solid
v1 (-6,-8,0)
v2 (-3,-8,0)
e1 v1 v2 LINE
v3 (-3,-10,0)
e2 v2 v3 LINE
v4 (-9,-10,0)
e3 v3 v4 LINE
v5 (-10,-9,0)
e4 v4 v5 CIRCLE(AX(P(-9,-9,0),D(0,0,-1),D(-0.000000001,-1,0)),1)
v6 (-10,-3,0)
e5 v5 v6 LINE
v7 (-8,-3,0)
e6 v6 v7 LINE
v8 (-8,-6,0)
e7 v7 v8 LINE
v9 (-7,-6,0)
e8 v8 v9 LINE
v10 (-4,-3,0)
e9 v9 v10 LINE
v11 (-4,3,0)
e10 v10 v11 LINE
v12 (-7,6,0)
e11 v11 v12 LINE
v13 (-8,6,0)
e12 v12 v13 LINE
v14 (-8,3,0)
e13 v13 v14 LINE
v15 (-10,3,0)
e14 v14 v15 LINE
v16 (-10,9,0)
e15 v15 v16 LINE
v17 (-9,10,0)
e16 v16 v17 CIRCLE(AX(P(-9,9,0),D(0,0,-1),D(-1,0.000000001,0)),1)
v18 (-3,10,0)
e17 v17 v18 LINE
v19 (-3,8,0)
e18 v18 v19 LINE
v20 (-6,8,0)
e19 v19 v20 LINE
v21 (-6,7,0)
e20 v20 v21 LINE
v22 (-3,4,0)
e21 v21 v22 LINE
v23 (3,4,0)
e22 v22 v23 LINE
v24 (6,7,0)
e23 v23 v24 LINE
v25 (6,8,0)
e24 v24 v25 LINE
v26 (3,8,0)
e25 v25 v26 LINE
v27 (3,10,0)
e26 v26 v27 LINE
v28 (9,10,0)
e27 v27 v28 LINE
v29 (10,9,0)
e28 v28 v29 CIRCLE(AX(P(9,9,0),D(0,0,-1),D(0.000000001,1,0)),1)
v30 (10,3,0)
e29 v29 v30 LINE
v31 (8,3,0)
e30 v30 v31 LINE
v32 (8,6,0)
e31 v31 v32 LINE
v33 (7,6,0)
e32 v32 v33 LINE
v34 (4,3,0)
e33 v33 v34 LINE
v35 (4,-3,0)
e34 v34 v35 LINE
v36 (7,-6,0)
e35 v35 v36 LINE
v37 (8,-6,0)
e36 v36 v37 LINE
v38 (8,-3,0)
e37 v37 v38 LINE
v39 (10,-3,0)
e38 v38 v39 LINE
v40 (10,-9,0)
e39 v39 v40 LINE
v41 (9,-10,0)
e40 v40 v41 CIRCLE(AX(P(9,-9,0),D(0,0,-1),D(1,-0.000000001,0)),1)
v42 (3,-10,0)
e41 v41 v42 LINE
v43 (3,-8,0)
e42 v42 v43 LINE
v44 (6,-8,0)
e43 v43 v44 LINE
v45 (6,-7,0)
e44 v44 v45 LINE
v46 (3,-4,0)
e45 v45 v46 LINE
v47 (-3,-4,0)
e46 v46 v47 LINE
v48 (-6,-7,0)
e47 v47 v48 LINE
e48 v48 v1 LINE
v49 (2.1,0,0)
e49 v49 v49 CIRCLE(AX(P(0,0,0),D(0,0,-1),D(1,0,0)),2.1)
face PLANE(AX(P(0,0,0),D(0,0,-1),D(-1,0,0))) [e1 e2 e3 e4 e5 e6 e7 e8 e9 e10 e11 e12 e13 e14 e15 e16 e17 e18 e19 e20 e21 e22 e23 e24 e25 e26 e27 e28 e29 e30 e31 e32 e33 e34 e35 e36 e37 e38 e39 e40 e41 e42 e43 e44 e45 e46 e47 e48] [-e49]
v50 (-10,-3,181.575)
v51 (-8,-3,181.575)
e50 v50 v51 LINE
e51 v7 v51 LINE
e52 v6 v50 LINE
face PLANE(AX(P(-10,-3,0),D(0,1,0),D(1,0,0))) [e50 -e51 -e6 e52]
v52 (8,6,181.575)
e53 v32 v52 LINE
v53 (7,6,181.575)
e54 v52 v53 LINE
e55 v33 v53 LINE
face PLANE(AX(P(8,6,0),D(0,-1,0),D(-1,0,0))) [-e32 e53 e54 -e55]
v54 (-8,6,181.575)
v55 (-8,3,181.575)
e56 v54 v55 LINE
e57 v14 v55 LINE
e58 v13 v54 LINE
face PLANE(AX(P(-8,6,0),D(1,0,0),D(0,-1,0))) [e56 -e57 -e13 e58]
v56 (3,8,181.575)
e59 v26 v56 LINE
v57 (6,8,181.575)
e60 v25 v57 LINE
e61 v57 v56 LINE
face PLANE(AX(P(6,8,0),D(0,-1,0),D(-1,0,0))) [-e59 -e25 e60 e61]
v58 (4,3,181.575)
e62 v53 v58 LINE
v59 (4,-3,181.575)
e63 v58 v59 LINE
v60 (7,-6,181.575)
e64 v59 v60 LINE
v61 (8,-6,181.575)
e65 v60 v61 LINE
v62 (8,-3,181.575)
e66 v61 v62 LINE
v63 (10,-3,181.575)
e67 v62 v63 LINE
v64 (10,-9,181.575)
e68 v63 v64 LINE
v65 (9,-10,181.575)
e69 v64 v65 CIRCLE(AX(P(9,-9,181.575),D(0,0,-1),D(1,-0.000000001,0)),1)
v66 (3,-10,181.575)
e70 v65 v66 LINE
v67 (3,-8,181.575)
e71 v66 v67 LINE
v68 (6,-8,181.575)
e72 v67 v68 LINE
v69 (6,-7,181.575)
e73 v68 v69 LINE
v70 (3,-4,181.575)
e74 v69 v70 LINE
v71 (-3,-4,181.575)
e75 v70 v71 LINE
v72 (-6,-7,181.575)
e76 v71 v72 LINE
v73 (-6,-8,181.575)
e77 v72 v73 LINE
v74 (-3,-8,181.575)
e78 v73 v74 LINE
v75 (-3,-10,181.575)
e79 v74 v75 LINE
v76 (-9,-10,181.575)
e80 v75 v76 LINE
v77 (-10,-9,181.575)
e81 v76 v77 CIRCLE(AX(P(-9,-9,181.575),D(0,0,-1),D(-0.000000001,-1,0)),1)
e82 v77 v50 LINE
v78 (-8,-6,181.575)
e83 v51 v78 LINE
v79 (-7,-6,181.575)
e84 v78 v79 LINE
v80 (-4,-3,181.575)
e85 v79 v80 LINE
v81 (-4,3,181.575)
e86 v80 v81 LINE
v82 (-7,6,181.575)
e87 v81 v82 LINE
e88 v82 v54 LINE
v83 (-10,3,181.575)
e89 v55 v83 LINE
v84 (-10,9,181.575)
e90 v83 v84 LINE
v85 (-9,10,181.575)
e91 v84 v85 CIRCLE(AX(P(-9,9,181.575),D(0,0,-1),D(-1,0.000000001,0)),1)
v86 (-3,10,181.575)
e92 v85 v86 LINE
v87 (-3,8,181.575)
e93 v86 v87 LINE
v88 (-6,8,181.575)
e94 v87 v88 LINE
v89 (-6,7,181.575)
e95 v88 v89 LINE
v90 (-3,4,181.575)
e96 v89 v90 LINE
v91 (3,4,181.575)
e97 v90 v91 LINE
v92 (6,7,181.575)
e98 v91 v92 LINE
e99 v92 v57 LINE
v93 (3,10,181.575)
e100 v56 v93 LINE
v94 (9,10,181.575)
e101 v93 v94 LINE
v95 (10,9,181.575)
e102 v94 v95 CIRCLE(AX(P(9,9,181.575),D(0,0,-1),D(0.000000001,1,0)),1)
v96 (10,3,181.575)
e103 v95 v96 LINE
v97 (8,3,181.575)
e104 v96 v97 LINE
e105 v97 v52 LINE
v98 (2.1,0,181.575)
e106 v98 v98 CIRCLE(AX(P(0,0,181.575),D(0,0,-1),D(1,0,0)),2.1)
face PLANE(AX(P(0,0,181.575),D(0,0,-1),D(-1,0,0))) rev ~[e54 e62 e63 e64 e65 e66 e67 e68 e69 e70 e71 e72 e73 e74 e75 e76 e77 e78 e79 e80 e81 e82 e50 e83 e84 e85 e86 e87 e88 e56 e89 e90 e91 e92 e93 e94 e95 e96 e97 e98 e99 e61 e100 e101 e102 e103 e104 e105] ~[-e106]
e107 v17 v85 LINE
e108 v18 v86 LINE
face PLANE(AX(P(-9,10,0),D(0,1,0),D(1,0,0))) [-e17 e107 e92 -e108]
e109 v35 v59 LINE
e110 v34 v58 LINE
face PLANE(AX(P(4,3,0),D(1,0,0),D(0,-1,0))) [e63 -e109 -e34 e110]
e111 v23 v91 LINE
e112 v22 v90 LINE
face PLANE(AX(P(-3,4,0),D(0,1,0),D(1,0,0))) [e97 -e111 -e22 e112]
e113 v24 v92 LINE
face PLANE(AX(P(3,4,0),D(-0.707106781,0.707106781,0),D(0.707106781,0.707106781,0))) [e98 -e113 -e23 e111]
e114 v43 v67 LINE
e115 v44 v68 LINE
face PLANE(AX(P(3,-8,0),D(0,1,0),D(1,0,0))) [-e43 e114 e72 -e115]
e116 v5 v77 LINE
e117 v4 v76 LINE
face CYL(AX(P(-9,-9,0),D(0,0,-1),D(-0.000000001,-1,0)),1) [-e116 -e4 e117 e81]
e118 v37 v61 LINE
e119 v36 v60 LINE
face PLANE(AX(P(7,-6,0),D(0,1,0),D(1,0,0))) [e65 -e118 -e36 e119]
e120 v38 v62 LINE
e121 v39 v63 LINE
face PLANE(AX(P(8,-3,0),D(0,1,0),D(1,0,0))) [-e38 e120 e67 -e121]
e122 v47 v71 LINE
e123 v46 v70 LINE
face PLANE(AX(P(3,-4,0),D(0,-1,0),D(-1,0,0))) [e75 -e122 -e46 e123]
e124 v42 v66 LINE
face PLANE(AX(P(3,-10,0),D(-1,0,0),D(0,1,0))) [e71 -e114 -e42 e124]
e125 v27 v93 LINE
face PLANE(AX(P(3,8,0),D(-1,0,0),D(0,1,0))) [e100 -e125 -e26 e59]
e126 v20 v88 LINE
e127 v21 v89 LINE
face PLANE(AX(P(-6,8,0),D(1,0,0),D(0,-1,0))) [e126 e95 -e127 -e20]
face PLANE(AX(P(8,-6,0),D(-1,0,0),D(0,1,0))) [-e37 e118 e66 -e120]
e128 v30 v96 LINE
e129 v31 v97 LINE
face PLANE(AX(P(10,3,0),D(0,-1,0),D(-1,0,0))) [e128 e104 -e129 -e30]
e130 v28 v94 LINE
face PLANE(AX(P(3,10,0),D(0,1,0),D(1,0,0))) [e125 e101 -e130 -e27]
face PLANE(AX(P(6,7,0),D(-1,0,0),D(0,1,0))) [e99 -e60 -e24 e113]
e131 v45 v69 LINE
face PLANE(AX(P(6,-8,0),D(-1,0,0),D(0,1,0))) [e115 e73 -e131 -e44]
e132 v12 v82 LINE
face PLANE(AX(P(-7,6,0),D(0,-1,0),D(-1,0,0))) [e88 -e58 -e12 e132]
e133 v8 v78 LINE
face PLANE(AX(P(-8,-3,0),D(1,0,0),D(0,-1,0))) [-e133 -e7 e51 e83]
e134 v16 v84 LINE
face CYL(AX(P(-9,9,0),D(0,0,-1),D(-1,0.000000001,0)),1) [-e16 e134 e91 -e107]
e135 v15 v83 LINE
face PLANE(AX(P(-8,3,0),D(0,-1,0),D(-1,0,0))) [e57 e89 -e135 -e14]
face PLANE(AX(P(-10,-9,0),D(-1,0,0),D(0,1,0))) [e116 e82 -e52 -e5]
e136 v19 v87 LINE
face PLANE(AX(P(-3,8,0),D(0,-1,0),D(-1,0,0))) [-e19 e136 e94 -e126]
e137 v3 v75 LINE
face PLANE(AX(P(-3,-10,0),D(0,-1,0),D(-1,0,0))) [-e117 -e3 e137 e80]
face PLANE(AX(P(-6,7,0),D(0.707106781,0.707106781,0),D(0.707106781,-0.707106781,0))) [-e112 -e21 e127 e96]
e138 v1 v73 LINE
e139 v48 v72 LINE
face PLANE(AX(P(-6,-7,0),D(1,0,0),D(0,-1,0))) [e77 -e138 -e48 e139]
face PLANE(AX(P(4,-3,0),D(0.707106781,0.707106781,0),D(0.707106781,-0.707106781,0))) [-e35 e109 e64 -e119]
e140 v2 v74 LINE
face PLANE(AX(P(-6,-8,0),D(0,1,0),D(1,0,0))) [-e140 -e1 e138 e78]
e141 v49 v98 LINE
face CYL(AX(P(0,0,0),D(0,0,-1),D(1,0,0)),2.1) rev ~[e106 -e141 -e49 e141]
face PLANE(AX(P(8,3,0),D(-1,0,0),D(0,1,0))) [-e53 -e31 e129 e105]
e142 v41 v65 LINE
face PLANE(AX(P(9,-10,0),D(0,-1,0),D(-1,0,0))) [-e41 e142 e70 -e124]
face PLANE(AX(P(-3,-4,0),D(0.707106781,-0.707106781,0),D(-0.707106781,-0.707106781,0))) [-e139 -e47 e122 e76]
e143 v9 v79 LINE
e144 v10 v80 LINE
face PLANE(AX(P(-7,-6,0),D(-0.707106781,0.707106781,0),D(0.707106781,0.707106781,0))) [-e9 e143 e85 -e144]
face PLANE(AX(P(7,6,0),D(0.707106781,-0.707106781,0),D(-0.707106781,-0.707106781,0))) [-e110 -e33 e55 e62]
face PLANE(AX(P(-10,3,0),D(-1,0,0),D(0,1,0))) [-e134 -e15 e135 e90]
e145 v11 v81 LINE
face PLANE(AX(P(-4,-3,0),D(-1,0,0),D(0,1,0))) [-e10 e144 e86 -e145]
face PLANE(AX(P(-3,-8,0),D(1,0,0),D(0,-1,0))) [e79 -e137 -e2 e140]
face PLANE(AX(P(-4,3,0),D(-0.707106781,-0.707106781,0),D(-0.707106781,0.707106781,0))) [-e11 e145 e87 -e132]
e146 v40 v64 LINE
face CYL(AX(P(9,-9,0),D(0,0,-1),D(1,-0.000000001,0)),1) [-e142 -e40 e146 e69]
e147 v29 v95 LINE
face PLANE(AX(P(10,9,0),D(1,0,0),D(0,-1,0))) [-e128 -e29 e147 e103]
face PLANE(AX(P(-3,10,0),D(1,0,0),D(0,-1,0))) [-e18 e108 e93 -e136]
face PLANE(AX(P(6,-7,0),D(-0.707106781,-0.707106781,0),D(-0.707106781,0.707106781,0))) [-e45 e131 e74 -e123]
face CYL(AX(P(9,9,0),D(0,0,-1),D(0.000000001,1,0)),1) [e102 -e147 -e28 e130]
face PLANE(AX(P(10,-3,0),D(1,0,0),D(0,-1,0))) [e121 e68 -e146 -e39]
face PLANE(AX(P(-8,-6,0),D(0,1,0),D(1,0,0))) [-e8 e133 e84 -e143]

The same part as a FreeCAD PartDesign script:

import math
import FreeCAD as App
import Part
import Sketcher

doc = App.newDocument("Part")
body = doc.addObject("PartDesign::Body", "Body")

# Sketch on XY plane
sketch1 = body.newObject("Sketcher::SketchObject", "Sketch")
sketch1.AttachmentSupport = (doc.getObject("XY_Plane"), [""])
sketch1.MapMode = "FlatFace"
sketch1.addGeometry([
    Part.LineSegment(App.Vector(-6, -8, 0), App.Vector(-3, -8, 0)),  # 0
    Part.LineSegment(App.Vector(-3, -8, 0), App.Vector(-3, -10, 0)),  # 1
    Part.LineSegment(App.Vector(-3, -10, 0), App.Vector(-9, -10, 0)),  # 2
    Part.ArcOfCircle(Part.Circle(App.Vector(-9, -9, 0), App.Vector(0, 0, 1), 1), math.radians(-180), math.radians(-90)),  # 3
    Part.LineSegment(App.Vector(-10, -9, 0), App.Vector(-10, -3, 0)),  # 4
    Part.LineSegment(App.Vector(-10, -3, 0), App.Vector(-8, -3, 0)),  # 5
    Part.LineSegment(App.Vector(-8, -3, 0), App.Vector(-8, -6, 0)),  # 6
    Part.LineSegment(App.Vector(-8, -6, 0), App.Vector(-7, -6, 0)),  # 7
    Part.LineSegment(App.Vector(-7, -6, 0), App.Vector(-4, -3, 0)),  # 8
    Part.LineSegment(App.Vector(-4, -3, 0), App.Vector(-4, 3, 0)),  # 9
    Part.LineSegment(App.Vector(-4, 3, 0), App.Vector(-7, 6, 0)),  # 10
    Part.LineSegment(App.Vector(-7, 6, 0), App.Vector(-8, 6, 0)),  # 11
    Part.LineSegment(App.Vector(-8, 6, 0), App.Vector(-8, 3, 0)),  # 12
    Part.LineSegment(App.Vector(-8, 3, 0), App.Vector(-10, 3, 0)),  # 13
    Part.LineSegment(App.Vector(-10, 3, 0), App.Vector(-10, 9, 0)),  # 14
    Part.ArcOfCircle(Part.Circle(App.Vector(-9, 9, 0), App.Vector(0, 0, 1), 1), math.radians(90), math.radians(180)),  # 15
    Part.LineSegment(App.Vector(-9, 10, 0), App.Vector(-3, 10, 0)),  # 16
    Part.LineSegment(App.Vector(-3, 10, 0), App.Vector(-3, 8, 0)),  # 17
    Part.LineSegment(App.Vector(-3, 8, 0), App.Vector(-6, 8, 0)),  # 18
    Part.LineSegment(App.Vector(-6, 8, 0), App.Vector(-6, 7, 0)),  # 19
    Part.LineSegment(App.Vector(-6, 7, 0), App.Vector(-3, 4, 0)),  # 20
    Part.LineSegment(App.Vector(-3, 4, 0), App.Vector(3, 4, 0)),  # 21
    Part.LineSegment(App.Vector(3, 4, 0), App.Vector(6, 7, 0)),  # 22
    Part.LineSegment(App.Vector(6, 7, 0), App.Vector(6, 8, 0)),  # 23
    Part.LineSegment(App.Vector(6, 8, 0), App.Vector(3, 8, 0)),  # 24
    Part.LineSegment(App.Vector(3, 8, 0), App.Vector(3, 10, 0)),  # 25
    Part.LineSegment(App.Vector(3, 10, 0), App.Vector(9, 10, 0)),  # 26
    Part.ArcOfCircle(Part.Circle(App.Vector(9, 9, 0), App.Vector(0, 0, 1), 1), math.radians(0), math.radians(90)),  # 27
    Part.LineSegment(App.Vector(10, 9, 0), App.Vector(10, 3, 0)),  # 28
    Part.LineSegment(App.Vector(10, 3, 0), App.Vector(8, 3, 0)),  # 29
    Part.LineSegment(App.Vector(8, 3, 0), App.Vector(8, 6, 0)),  # 30
    Part.LineSegment(App.Vector(8, 6, 0), App.Vector(7, 6, 0)),  # 31
    Part.LineSegment(App.Vector(7, 6, 0), App.Vector(4, 3, 0)),  # 32
    Part.LineSegment(App.Vector(4, 3, 0), App.Vector(4, -3, 0)),  # 33
    Part.LineSegment(App.Vector(4, -3, 0), App.Vector(7, -6, 0)),  # 34
    Part.LineSegment(App.Vector(7, -6, 0), App.Vector(8, -6, 0)),  # 35
    Part.LineSegment(App.Vector(8, -6, 0), App.Vector(8, -3, 0)),  # 36
    Part.LineSegment(App.Vector(8, -3, 0), App.Vector(10, -3, 0)),  # 37
    Part.LineSegment(App.Vector(10, -3, 0), App.Vector(10, -9, 0)),  # 38
    Part.ArcOfCircle(Part.Circle(App.Vector(9, -9, 0), App.Vector(0, 0, 1), 1), math.radians(-90), math.radians(0)),  # 39
    Part.LineSegment(App.Vector(9, -10, 0), App.Vector(3, -10, 0)),  # 40
    Part.LineSegment(App.Vector(3, -10, 0), App.Vector(3, -8, 0)),  # 41
    Part.LineSegment(App.Vector(3, -8, 0), App.Vector(6, -8, 0)),  # 42
    Part.LineSegment(App.Vector(6, -8, 0), App.Vector(6, -7, 0)),  # 43
    Part.LineSegment(App.Vector(6, -7, 0), App.Vector(3, -4, 0)),  # 44
    Part.LineSegment(App.Vector(3, -4, 0), App.Vector(-3, -4, 0)),  # 45
    Part.LineSegment(App.Vector(-3, -4, 0), App.Vector(-6, -7, 0)),  # 46
    Part.LineSegment(App.Vector(-6, -7, 0), App.Vector(-6, -8, 0)),  # 47
    Part.Circle(App.Vector(0, 0, 0), App.Vector(0, 0, 1), 2.1),  # 48
], False)
sketch1.addConstraint([
    Sketcher.Constraint("Coincident", 0, 2, 1, 1),
    Sketcher.Constraint("Coincident", 1, 2, 2, 1),
    Sketcher.Constraint("Tangent", 2, 2, 3, 2),
    Sketcher.Constraint("Tangent", 3, 1, 4, 1),
    Sketcher.Constraint("Coincident", 4, 2, 5, 1),
    Sketcher.Constraint("Coincident", 5, 2, 6, 1),
    Sketcher.Constraint("Coincident", 6, 2, 7, 1),
    Sketcher.Constraint("Coincident", 7, 2, 8, 1),
    Sketcher.Constraint("Coincident", 8, 2, 9, 1),
    Sketcher.Constraint("Coincident", 9, 2, 10, 1),
    Sketcher.Constraint("Coincident", 10, 2, 11, 1),
    Sketcher.Constraint("Coincident", 11, 2, 12, 1),
    Sketcher.Constraint("Coincident", 12, 2, 13, 1),
    Sketcher.Constraint("Coincident", 13, 2, 14, 1),
    Sketcher.Constraint("Tangent", 14, 2, 15, 2),
    Sketcher.Constraint("Tangent", 15, 1, 16, 1),
    Sketcher.Constraint("Coincident", 16, 2, 17, 1),
    Sketcher.Constraint("Coincident", 17, 2, 18, 1),
    Sketcher.Constraint("Coincident", 18, 2, 19, 1),
    Sketcher.Constraint("Coincident", 19, 2, 20, 1),
    Sketcher.Constraint("Coincident", 20, 2, 21, 1),
    Sketcher.Constraint("Coincident", 21, 2, 22, 1),
    Sketcher.Constraint("Coincident", 22, 2, 23, 1),
    Sketcher.Constraint("Coincident", 23, 2, 24, 1),
    Sketcher.Constraint("Coincident", 24, 2, 25, 1),
    Sketcher.Constraint("Coincident", 25, 2, 26, 1),
    Sketcher.Constraint("Tangent", 26, 2, 27, 2),
    Sketcher.Constraint("Tangent", 27, 1, 28, 1),
    Sketcher.Constraint("Coincident", 28, 2, 29, 1),
    Sketcher.Constraint("Coincident", 29, 2, 30, 1),
    Sketcher.Constraint("Coincident", 30, 2, 31, 1),
    Sketcher.Constraint("Coincident", 31, 2, 32, 1),
    Sketcher.Constraint("Coincident", 32, 2, 33, 1),
    Sketcher.Constraint("Coincident", 33, 2, 34, 1),
    Sketcher.Constraint("Coincident", 34, 2, 35, 1),
    Sketcher.Constraint("Coincident", 35, 2, 36, 1),
    Sketcher.Constraint("Coincident", 36, 2, 37, 1),
    Sketcher.Constraint("Coincident", 37, 2, 38, 1),
    Sketcher.Constraint("Tangent", 38, 2, 39, 2),
    Sketcher.Constraint("Tangent", 39, 1, 40, 1),
    Sketcher.Constraint("Coincident", 40, 2, 41, 1),
    Sketcher.Constraint("Coincident", 41, 2, 42, 1),
    Sketcher.Constraint("Coincident", 42, 2, 43, 1),
    Sketcher.Constraint("Coincident", 43, 2, 44, 1),
    Sketcher.Constraint("Coincident", 44, 2, 45, 1),
    Sketcher.Constraint("Coincident", 45, 2, 46, 1),
    Sketcher.Constraint("Coincident", 46, 2, 47, 1),
    Sketcher.Constraint("Coincident", 47, 2, 0, 1),
    Sketcher.Constraint("Horizontal", 0),
    Sketcher.Constraint("Vertical", 1),
    Sketcher.Constraint("Horizontal", 2),
    Sketcher.Constraint("Vertical", 4),
    Sketcher.Constraint("Horizontal", 5),
    Sketcher.Constraint("Vertical", 6),
    Sketcher.Constraint("Horizontal", 7),
    Sketcher.Constraint("Vertical", 9),
    Sketcher.Constraint("Horizontal", 11),
    Sketcher.Constraint("Vertical", 12),
    Sketcher.Constraint("Horizontal", 13),
    Sketcher.Constraint("Vertical", 14),
    Sketcher.Constraint("Horizontal", 16),
    Sketcher.Constraint("Vertical", 17),
    Sketcher.Constraint("Horizontal", 18),
    Sketcher.Constraint("Vertical", 19),
    Sketcher.Constraint("Horizontal", 21),
    Sketcher.Constraint("Vertical", 23),
    Sketcher.Constraint("Horizontal", 24),
    Sketcher.Constraint("Vertical", 25),
    Sketcher.Constraint("Horizontal", 26),
    Sketcher.Constraint("Vertical", 28),
    Sketcher.Constraint("Horizontal", 29),
    Sketcher.Constraint("Vertical", 30),
    Sketcher.Constraint("Horizontal", 31),
    Sketcher.Constraint("Vertical", 33),
    Sketcher.Constraint("Horizontal", 35),
    Sketcher.Constraint("Vertical", 36),
    Sketcher.Constraint("Horizontal", 37),
    Sketcher.Constraint("Vertical", 38),
    Sketcher.Constraint("Horizontal", 40),
    Sketcher.Constraint("Vertical", 41),
    Sketcher.Constraint("Horizontal", 42),
    Sketcher.Constraint("Vertical", 43),
    Sketcher.Constraint("Horizontal", 45),
    Sketcher.Constraint("Vertical", 47),
    Sketcher.Constraint("Coincident", 48, 3, -1, 1),
    Sketcher.Constraint("Equal", 3, 15),
    Sketcher.Constraint("Equal", 15, 27),
    Sketcher.Constraint("Equal", 27, 39),
    Sketcher.Constraint("Symmetric", 3, 3, 27, 3, -1, 1),
    Sketcher.Constraint("Symmetric", 15, 3, 39, 3, -1, 1),
    Sketcher.Constraint("Symmetric", 0, 2, 24, 2, -1, 1),
    Sketcher.Constraint("Symmetric", 5, 2, 29, 2, -1, 1),
    Sketcher.Constraint("Symmetric", 7, 2, 31, 2, -1, 1),
    Sketcher.Constraint("Symmetric", 8, 2, 32, 2, -1, 1),
    Sketcher.Constraint("Symmetric", 10, 2, 34, 2, -1, 1),
    Sketcher.Constraint("Symmetric", 12, 2, 36, 2, -1, 1),
    Sketcher.Constraint("Symmetric", 17, 2, 41, 2, -1, 1),
    Sketcher.Constraint("Symmetric", 19, 2, 43, 2, -1, 1),
    Sketcher.Constraint("Symmetric", 20, 2, 44, 2, -1, 1),
    Sketcher.Constraint("Symmetric", 22, 2, 46, 2, -1, 1),
    Sketcher.Constraint("Symmetric", 15, 3, 27, 3, -2),
    Sketcher.Constraint("Symmetric", 19, 2, 22, 2, -2),
    Sketcher.Constraint("Symmetric", 17, 2, 24, 2, -2),
    Sketcher.Constraint("Symmetric", 12, 2, 29, 2, -2),
    Sketcher.Constraint("Symmetric", 10, 2, 31, 2, -2),
    Sketcher.Constraint("Perpendicular", 8, 10),
    Sketcher.Constraint("Parallel", 10, 20),
    Sketcher.Constraint("Perpendicular", 20, 22),
    Sketcher.Constraint("Perpendicular", 32, 34),
    Sketcher.Constraint("Perpendicular", 44, 46),
    Sketcher.Constraint("Horizontal", 5, 2, 8, 2),
    Sketcher.Constraint("Horizontal", 9, 2, 12, 2),
    Sketcher.Constraint("Vertical", 17, 2, 20, 2),
    Sketcher.Constraint("Equal", 16, 21),
    Sketcher.Constraint("Equal", 37, 1),
    Sketcher.Constraint("Equal", 45, 4),
    Sketcher.Constraint("Equal", 42, 6),
    Sketcher.Constraint("Equal", 4, 9),
    Sketcher.Constraint("Equal", 35, 19),
    Sketcher.Constraint("Radius", 3, 1.0),
    Sketcher.Constraint("Diameter", 48, 4.2),
    Sketcher.Constraint("DistanceX", 0, 1, 0, 2, 3.0),
    Sketcher.Constraint("DistanceX", 2, 2, 2, 1, 6.0),
    Sketcher.Constraint("DistanceX", 5, 1, 5, 2, 2.0),
    Sketcher.Constraint("DistanceX", 7, 1, 7, 2, 1.0),
])
pad1 = body.newObject("PartDesign::Pad", "Pad")
pad1.Profile = sketch1
pad1.Length = 181.575

doc.recompute()
